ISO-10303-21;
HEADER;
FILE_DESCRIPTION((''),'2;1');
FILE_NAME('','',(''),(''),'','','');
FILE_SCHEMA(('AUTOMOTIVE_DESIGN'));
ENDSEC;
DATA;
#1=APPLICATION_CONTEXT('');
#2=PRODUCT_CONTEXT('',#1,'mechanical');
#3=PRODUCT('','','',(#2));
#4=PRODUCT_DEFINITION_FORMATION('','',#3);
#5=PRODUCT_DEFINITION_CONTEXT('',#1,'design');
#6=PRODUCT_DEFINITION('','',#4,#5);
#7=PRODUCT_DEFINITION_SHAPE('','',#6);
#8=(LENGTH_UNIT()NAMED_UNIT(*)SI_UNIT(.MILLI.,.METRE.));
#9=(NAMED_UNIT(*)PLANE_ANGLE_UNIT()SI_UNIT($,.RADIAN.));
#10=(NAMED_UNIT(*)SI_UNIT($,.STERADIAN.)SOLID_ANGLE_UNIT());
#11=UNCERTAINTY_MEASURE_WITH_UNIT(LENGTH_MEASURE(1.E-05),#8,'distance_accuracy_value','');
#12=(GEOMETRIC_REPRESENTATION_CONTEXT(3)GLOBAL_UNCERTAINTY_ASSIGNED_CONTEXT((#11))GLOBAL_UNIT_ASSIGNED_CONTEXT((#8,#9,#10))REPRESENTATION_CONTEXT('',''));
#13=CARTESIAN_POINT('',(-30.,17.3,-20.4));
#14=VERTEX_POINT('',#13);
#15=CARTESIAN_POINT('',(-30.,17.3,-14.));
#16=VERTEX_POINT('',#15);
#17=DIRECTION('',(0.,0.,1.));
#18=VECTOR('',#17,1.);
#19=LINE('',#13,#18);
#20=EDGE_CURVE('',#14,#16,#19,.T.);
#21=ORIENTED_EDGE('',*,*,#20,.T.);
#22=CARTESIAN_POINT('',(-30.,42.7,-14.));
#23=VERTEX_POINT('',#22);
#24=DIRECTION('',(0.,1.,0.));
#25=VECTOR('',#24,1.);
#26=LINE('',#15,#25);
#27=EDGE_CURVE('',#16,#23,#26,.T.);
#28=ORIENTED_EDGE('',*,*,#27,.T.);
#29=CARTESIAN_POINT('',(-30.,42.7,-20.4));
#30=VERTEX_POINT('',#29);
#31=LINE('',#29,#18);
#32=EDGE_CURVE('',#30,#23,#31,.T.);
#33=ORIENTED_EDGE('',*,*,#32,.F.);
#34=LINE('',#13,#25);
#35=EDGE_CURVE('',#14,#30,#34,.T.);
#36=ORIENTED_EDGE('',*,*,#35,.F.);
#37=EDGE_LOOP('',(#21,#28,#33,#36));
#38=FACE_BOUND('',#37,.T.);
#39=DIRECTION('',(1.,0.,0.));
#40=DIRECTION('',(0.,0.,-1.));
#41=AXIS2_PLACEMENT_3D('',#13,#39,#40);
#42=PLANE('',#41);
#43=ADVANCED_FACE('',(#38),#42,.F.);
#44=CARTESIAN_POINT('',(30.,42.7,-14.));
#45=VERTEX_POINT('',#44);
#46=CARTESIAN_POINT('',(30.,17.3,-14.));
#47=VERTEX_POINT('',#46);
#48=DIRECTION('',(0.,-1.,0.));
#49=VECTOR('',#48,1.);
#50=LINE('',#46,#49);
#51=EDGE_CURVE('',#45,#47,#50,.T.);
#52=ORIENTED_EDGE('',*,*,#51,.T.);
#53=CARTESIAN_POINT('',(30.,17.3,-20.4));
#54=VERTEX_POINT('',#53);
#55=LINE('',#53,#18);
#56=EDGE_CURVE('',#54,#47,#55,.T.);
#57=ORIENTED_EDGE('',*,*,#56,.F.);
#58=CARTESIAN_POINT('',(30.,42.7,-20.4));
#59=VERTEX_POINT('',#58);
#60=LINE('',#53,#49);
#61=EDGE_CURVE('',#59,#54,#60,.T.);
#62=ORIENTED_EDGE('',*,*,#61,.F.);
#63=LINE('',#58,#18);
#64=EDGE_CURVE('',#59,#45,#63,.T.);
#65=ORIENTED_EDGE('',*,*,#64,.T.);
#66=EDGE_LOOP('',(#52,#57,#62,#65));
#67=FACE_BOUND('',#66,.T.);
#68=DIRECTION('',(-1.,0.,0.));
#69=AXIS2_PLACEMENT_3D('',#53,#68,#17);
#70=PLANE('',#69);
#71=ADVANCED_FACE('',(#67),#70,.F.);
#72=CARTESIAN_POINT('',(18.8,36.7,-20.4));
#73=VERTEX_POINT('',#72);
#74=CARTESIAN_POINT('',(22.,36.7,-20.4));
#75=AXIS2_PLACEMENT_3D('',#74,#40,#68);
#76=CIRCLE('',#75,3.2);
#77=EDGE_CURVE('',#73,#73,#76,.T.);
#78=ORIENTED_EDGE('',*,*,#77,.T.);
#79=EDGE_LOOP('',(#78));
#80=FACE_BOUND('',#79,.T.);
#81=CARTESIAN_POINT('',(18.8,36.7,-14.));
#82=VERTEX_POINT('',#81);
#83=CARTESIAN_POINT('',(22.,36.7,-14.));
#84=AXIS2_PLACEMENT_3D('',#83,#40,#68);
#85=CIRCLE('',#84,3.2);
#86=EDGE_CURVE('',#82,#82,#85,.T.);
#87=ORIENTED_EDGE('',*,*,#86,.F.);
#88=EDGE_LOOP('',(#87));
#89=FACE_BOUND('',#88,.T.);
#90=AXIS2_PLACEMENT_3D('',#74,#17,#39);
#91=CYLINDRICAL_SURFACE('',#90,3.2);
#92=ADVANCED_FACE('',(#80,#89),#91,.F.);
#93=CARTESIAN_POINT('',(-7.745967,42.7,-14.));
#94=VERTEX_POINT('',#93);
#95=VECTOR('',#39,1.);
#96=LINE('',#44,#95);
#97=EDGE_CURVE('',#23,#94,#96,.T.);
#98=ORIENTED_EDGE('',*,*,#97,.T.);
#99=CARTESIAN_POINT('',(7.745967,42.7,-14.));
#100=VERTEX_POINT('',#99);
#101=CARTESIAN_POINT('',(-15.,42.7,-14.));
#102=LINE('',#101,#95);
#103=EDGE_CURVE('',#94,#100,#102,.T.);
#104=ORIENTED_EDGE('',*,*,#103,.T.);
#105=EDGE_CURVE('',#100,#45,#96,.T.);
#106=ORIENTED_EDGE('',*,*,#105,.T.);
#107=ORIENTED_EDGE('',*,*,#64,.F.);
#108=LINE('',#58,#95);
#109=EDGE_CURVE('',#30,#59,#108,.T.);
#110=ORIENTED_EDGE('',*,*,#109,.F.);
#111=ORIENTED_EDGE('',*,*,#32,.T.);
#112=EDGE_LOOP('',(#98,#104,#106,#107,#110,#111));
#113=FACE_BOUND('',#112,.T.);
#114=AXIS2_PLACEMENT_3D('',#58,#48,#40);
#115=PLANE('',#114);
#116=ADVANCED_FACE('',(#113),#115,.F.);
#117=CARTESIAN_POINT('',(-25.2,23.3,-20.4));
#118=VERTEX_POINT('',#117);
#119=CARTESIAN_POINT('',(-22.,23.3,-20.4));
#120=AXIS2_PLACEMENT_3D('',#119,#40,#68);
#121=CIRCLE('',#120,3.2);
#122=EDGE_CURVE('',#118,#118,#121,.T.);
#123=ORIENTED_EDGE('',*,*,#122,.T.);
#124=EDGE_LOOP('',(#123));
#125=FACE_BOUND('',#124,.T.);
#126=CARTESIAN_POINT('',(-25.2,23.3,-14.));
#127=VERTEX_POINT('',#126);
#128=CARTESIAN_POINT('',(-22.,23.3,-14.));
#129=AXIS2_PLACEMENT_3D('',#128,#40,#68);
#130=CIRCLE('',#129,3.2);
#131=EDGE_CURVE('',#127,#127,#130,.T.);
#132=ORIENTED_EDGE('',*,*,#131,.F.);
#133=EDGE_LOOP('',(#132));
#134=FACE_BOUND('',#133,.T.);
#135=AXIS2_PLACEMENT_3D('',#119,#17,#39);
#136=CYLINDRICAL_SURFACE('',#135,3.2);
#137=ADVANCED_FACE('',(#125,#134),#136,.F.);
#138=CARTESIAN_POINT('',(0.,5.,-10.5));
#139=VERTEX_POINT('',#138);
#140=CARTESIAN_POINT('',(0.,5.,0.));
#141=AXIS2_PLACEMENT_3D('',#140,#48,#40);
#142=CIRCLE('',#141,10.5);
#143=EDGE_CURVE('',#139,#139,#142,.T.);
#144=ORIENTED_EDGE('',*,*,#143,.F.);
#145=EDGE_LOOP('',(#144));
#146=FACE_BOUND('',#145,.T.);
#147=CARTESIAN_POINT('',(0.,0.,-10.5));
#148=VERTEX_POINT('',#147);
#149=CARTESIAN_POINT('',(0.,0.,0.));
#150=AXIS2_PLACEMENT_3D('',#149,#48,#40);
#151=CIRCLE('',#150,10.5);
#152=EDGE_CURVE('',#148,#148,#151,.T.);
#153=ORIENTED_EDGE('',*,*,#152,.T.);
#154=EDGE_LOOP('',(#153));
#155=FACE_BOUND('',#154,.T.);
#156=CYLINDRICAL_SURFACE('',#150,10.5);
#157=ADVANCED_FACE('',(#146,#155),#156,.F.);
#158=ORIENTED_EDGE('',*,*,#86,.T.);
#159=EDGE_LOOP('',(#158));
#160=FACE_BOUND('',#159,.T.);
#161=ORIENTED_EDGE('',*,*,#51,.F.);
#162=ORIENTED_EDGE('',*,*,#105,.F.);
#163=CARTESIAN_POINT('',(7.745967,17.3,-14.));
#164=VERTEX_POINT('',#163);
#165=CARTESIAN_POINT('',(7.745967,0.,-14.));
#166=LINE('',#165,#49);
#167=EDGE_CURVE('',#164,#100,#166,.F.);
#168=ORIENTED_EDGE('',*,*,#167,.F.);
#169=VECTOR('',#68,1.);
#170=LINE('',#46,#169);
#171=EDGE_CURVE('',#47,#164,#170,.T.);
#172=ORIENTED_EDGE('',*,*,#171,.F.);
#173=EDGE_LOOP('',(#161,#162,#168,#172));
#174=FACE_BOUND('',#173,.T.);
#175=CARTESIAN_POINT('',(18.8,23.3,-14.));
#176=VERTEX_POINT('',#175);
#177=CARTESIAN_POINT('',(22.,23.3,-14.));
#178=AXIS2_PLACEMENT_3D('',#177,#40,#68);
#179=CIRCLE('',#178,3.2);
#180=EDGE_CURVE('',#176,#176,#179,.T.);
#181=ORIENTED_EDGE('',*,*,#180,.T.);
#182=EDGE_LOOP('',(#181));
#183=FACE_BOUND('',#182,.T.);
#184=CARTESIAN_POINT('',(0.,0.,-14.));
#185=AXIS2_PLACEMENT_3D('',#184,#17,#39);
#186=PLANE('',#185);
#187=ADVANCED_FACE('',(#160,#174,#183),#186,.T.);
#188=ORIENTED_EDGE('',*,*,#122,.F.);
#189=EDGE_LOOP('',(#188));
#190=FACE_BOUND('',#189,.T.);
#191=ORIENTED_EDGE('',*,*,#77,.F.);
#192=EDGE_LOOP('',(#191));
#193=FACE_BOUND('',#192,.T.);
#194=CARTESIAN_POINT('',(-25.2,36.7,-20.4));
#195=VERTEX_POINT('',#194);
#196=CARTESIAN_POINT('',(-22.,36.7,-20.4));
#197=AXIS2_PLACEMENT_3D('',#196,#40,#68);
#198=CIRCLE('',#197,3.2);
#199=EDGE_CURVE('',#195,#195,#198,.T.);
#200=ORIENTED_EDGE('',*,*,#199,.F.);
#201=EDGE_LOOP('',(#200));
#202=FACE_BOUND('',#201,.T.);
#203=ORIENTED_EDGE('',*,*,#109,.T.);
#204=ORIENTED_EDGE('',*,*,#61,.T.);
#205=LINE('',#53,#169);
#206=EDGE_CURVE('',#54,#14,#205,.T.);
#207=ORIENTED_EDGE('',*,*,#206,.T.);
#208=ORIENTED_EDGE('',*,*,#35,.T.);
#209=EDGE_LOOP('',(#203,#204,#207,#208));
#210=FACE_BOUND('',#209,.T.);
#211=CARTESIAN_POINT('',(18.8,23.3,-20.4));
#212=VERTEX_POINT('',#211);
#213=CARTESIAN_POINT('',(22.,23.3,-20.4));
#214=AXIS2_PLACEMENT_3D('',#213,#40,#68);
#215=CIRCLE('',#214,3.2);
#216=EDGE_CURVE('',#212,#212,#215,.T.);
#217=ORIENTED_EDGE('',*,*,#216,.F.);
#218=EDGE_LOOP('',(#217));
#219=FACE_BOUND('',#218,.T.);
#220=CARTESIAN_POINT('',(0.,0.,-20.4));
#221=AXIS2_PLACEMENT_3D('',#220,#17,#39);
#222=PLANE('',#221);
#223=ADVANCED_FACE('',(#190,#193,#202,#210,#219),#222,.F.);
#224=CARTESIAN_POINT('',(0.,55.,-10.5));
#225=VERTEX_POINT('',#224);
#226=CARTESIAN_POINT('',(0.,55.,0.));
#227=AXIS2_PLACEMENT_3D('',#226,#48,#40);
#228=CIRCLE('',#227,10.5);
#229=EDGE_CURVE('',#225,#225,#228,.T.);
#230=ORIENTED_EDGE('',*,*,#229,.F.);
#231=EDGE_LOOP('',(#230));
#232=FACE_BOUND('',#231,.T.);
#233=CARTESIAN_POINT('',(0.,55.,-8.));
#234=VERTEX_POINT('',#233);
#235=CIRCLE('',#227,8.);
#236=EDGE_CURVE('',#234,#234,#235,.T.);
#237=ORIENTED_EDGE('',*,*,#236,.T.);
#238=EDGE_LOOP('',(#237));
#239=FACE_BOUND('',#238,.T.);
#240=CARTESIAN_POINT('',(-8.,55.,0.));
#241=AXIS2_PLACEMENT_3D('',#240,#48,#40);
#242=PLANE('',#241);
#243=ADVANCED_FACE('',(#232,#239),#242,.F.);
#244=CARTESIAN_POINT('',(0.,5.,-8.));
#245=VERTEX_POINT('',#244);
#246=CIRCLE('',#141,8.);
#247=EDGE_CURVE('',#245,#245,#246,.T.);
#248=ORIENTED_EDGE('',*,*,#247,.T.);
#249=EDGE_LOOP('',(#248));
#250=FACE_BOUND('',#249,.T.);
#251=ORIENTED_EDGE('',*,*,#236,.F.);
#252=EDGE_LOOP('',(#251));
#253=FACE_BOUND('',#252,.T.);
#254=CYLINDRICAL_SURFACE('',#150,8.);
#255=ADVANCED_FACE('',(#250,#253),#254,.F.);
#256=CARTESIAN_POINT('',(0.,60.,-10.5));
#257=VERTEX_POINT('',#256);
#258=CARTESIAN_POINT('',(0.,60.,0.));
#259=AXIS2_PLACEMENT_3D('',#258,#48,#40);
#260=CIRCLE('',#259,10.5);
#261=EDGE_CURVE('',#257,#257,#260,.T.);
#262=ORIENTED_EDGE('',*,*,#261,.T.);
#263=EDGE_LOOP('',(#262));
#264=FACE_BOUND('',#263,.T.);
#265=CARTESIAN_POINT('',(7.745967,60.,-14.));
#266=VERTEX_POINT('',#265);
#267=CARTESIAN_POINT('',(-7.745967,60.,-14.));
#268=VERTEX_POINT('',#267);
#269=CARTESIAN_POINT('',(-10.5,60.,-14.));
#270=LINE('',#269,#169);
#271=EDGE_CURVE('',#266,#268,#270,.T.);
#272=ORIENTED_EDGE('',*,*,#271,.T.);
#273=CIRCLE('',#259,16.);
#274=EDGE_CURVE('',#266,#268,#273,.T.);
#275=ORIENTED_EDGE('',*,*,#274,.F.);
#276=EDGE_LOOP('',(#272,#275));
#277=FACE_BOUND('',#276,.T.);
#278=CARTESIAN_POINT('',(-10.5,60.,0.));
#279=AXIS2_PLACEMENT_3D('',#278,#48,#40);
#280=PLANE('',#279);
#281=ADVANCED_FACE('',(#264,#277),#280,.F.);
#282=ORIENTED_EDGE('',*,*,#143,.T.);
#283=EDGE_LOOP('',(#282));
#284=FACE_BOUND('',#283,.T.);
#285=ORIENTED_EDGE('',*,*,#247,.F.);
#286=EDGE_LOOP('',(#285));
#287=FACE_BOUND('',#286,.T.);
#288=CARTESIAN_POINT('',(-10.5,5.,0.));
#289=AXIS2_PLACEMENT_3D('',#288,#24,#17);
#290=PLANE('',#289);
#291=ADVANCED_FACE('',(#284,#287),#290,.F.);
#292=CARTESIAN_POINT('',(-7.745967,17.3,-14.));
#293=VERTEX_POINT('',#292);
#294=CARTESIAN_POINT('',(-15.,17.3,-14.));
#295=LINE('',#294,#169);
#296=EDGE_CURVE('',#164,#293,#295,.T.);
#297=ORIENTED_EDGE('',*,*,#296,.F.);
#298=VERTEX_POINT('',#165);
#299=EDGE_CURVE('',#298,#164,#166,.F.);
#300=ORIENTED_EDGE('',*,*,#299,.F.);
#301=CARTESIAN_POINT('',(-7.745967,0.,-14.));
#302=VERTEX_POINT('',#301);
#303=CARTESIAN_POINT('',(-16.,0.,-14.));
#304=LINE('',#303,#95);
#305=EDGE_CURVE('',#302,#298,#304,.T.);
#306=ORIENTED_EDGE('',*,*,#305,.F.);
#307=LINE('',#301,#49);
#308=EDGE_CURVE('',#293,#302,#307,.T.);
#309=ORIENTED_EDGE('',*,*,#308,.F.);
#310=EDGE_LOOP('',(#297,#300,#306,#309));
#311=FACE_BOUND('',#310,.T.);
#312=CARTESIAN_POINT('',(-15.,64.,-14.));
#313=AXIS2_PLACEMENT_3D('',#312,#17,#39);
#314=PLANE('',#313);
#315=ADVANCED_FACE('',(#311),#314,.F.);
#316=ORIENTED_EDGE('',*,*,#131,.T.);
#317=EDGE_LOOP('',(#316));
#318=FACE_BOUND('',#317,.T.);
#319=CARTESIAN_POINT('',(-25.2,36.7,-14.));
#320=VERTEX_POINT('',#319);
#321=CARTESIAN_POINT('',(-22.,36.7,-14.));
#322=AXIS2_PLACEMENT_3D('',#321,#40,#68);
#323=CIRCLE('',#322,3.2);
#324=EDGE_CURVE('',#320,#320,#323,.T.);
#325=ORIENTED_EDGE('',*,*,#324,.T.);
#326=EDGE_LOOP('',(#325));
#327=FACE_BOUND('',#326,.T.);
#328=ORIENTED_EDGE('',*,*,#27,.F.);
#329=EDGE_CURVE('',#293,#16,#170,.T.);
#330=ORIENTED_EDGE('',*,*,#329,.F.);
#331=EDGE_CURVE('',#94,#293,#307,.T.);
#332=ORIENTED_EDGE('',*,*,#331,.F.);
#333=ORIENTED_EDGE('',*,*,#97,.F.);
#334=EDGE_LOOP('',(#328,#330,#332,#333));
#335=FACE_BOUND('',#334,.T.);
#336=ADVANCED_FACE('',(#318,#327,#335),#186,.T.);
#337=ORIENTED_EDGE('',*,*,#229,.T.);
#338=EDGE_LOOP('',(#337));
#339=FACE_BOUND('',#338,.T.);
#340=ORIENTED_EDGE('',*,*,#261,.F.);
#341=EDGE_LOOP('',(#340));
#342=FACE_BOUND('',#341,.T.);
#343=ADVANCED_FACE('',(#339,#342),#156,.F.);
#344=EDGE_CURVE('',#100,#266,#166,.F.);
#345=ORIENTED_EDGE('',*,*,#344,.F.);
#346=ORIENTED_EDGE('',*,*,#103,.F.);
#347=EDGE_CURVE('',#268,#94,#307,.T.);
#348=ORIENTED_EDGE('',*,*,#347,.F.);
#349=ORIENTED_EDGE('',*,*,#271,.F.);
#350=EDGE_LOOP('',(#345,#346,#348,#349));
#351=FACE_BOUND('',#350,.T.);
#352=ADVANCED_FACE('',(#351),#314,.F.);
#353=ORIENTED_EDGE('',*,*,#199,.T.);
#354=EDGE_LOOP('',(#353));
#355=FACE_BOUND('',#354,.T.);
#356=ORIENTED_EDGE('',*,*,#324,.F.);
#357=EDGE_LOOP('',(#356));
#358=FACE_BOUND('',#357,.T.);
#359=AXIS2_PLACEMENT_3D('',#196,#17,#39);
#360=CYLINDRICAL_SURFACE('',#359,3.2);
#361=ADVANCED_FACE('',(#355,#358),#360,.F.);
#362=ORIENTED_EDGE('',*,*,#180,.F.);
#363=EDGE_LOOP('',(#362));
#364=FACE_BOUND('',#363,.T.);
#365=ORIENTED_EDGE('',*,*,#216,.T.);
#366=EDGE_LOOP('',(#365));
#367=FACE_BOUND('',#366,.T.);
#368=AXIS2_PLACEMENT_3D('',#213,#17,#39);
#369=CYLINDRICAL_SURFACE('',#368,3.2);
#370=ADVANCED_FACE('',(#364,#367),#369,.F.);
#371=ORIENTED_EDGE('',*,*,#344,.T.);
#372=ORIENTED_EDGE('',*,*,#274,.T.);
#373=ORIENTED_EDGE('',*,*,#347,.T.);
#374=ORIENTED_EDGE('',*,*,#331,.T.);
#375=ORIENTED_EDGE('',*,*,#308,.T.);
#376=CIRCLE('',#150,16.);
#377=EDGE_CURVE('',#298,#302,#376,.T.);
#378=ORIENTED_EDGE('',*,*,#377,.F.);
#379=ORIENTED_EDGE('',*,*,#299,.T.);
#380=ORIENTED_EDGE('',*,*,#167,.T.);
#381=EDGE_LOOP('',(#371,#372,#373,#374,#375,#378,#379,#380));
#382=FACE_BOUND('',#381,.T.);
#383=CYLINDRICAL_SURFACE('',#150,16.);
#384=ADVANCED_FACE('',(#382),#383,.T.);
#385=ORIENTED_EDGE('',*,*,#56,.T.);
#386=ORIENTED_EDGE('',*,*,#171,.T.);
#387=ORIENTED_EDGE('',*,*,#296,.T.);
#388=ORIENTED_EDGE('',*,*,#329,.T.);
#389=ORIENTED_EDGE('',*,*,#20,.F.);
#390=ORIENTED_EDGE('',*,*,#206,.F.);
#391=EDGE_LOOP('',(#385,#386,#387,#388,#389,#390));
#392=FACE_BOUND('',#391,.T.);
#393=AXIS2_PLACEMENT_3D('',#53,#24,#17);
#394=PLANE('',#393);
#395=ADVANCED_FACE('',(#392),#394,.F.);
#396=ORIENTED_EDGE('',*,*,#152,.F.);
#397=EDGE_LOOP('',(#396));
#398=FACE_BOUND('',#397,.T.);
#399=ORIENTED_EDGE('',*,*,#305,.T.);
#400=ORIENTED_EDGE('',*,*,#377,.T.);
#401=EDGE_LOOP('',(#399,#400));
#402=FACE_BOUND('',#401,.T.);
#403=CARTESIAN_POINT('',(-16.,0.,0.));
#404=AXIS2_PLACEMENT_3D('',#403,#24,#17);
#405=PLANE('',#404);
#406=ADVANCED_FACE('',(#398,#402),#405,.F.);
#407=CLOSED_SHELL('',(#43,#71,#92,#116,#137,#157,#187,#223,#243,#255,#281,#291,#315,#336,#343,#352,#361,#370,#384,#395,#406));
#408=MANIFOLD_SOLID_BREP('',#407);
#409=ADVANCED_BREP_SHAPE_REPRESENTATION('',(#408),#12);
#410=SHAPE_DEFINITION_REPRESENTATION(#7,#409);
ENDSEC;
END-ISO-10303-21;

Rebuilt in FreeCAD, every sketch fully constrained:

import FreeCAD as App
import Part
import Sketcher

doc = App.newDocument("Part")
body = doc.addObject("PartDesign::Body", "Body")

sketch1 = body.newObject("Sketcher::SketchObject", "Sketch")
sketch1.AttachmentSupport = (doc.getObject("XY_Plane"), [""])
sketch1.MapMode = "FlatFace"
sketch1.addGeometry([
    Part.LineSegment(App.Vector(-8, 55, 0), App.Vector(-10.5, 55, 0)),
    Part.LineSegment(App.Vector(-10.5, 55, 0), App.Vector(-10.5, 60, 0)),
    Part.LineSegment(App.Vector(-10.5, 60, 0), App.Vector(-16, 60, 0)),
    Part.LineSegment(App.Vector(-16, 60, 0), App.Vector(-16, 0, 0)),
    Part.LineSegment(App.Vector(-16, 0, 0), App.Vector(-10.5, 0, 0)),
    Part.LineSegment(App.Vector(-10.5, 0, 0), App.Vector(-10.5, 5, 0)),
    Part.LineSegment(App.Vector(-10.5, 5, 0), App.Vector(-8, 5, 0)),
    Part.LineSegment(App.Vector(-8, 5, 0), App.Vector(-8, 55, 0)),
], False)
sketch1.addConstraint([
    Sketcher.Constraint("Coincident", 0, 2, 1, 1),
    Sketcher.Constraint("Coincident", 1, 2, 2, 1),
    Sketcher.Constraint("Coincident", 2, 2, 3, 1),
    Sketcher.Constraint("Coincident", 3, 2, 4, 1),
    Sketcher.Constraint("Coincident", 4, 2, 5, 1),
    Sketcher.Constraint("Coincident", 5, 2, 6, 1),
    Sketcher.Constraint("Coincident", 6, 2, 7, 1),
    Sketcher.Constraint("Coincident", 7, 2, 0, 1),
    Sketcher.Constraint("Horizontal", 0),
    Sketcher.Constraint("Vertical", 1),
    Sketcher.Constraint("Horizontal", 2),
    Sketcher.Constraint("Vertical", 3),
    Sketcher.Constraint("Horizontal", 4),
    Sketcher.Constraint("Vertical", 5),
    Sketcher.Constraint("Horizontal", 6),
    Sketcher.Constraint("Vertical", 7),
    Sketcher.Constraint("PointOnObject", 3, 2, -1),
    Sketcher.Constraint("Vertical", 1, 2, 4, 2),
    Sketcher.Constraint("Equal", 1, 5),
    Sketcher.Constraint("DistanceY", 1, 1, 1, 2, 5.0),
    Sketcher.Constraint("DistanceY", 3, 2, 3, 1, 60.0),
    Sketcher.Constraint("DistanceX", 0, 2, 0, 1, 2.5),
    Sketcher.Constraint("DistanceX", 2, 2, 2, 1, 5.5),
    Sketcher.Constraint("DistanceX", 2, 2, -1, 1, 16.0),
])
revolution = body.newObject("PartDesign::Revolution", "Revolution")
revolution.Profile = sketch1
revolution.ReferenceAxis = (sketch1, ["V_Axis"])
revolution.Angle = 360

sketch2 = body.newObject("Sketcher::SketchObject", "Sketch001")
sketch2.AttachmentSupport = (doc.getObject("XZ_Plane"), [""])
sketch2.MapMode = "FlatFace"
sketch2.addGeometry([
    Part.LineSegment(App.Vector(-15, -14, 0), App.Vector(-15, -24, 0)),
    Part.LineSegment(App.Vector(-15, -24, 0), App.Vector(15, -24, 0)),
    Part.LineSegment(App.Vector(15, -24, 0), App.Vector(15, -14, 0)),
    Part.LineSegment(App.Vector(15, -14, 0), App.Vector(-15, -14, 0)),
], False)
sketch2.addConstraint([
    Sketcher.Constraint("Coincident", 0, 2, 1, 1),
    Sketcher.Constraint("Coincident", 1, 2, 2, 1),
    Sketcher.Constraint("Coincident", 2, 2, 3, 1),
    Sketcher.Constraint("Coincident", 3, 2, 0, 1),
    Sketcher.Constraint("Vertical", 0),
    Sketcher.Constraint("Horizontal", 1),
    Sketcher.Constraint("Vertical", 2),
    Sketcher.Constraint("Horizontal", 3),
    Sketcher.Constraint("DistanceX", 1, 1, 1, 2, 30.0),
    Sketcher.Constraint("DistanceY", 0, 2, 0, 1, 10.0),
    Sketcher.Constraint("DistanceX", 0, 2, -1, 1, 15.0),
    Sketcher.Constraint("DistanceY", 0, 2, -1, 1, 24.0),
])
pocket1 = body.newObject("PartDesign::Pocket", "Pocket")
pocket1.Profile = sketch2
pocket1.Length = 64

sketch3 = body.newObject("Sketcher::SketchObject", "Sketch002")
sketch3.AttachmentSupport = (doc.getObject("XY_Plane"), [""])
sketch3.MapMode = "FlatFace"
sketch3.AttachmentOffset = App.Placement(App.Vector(0, 0, -14), App.Rotation())
sketch3.addGeometry([
    Part.LineSegment(App.Vector(30, 42.7, 0), App.Vector(30, 17.3, 0)),
    Part.LineSegment(App.Vector(30, 17.3, 0), App.Vector(-30, 17.3, 0)),
    Part.LineSegment(App.Vector(-30, 17.3, 0), App.Vector(-30, 42.7, 0)),
    Part.LineSegment(App.Vector(-30, 42.7, 0), App.Vector(30, 42.7, 0)),
    Part.Circle(App.Vector(22, 23.3, 0), App.Vector(0, 0, 1), 3.2),
    Part.Circle(App.Vector(-22, 23.3, 0), App.Vector(0, 0, 1), 3.2),
    Part.Circle(App.Vector(22, 36.7, 0), App.Vector(0, 0, 1), 3.2),
    Part.Circle(App.Vector(-22, 36.7, 0), App.Vector(0, 0, 1), 3.2),
], False)
sketch3.addConstraint([
    Sketcher.Constraint("Coincident", 0, 2, 1, 1),
    Sketcher.Constraint("Coincident", 1, 2, 2, 1),
    Sketcher.Constraint("Coincident", 2, 2, 3, 1),
    Sketcher.Constraint("Coincident", 3, 2, 0, 1),
    Sketcher.Constraint("Vertical", 0),
    Sketcher.Constraint("Horizontal", 1),
    Sketcher.Constraint("Vertical", 2),
    Sketcher.Constraint("Horizontal", 3),
    Sketcher.Constraint("Equal", 4, 5),
    Sketcher.Constraint("Equal", 5, 6),
    Sketcher.Constraint("Equal", 6, 7),
    Sketcher.Constraint("Symmetric", 4, 3, 5, 3, -2),
    Sketcher.Constraint("Symmetric", 6, 3, 7, 3, -2),
    Sketcher.Constraint("Vertical", 4, 3, 6, 3),
    Sketcher.Constraint("Diameter", 4, 6.4),
    Sketcher.Constraint("DistanceX", 1, 2, 1, 1, 60.0),
    Sketcher.Constraint("DistanceY", 0, 2, 0, 1, 25.4),
    Sketcher.Constraint("DistanceX", -1, 1, 4, 3, 22.0),
    Sketcher.Constraint("DistanceX", -1, 1, 0, 2, 30.0),
    Sketcher.Constraint("DistanceY", 0, 2, 4, 3, 6.0),
    Sketcher.Constraint("DistanceY", 7, 3, 2, 2, 6.0),
    Sketcher.Constraint("DistanceY", -1, 1, 4, 3, 23.3),
])
pad1 = body.newObject("PartDesign::Pad", "Pad")
pad1.Profile = sketch3
pad1.Length = 6.4
pad1.Reversed = True

doc.recompute()
